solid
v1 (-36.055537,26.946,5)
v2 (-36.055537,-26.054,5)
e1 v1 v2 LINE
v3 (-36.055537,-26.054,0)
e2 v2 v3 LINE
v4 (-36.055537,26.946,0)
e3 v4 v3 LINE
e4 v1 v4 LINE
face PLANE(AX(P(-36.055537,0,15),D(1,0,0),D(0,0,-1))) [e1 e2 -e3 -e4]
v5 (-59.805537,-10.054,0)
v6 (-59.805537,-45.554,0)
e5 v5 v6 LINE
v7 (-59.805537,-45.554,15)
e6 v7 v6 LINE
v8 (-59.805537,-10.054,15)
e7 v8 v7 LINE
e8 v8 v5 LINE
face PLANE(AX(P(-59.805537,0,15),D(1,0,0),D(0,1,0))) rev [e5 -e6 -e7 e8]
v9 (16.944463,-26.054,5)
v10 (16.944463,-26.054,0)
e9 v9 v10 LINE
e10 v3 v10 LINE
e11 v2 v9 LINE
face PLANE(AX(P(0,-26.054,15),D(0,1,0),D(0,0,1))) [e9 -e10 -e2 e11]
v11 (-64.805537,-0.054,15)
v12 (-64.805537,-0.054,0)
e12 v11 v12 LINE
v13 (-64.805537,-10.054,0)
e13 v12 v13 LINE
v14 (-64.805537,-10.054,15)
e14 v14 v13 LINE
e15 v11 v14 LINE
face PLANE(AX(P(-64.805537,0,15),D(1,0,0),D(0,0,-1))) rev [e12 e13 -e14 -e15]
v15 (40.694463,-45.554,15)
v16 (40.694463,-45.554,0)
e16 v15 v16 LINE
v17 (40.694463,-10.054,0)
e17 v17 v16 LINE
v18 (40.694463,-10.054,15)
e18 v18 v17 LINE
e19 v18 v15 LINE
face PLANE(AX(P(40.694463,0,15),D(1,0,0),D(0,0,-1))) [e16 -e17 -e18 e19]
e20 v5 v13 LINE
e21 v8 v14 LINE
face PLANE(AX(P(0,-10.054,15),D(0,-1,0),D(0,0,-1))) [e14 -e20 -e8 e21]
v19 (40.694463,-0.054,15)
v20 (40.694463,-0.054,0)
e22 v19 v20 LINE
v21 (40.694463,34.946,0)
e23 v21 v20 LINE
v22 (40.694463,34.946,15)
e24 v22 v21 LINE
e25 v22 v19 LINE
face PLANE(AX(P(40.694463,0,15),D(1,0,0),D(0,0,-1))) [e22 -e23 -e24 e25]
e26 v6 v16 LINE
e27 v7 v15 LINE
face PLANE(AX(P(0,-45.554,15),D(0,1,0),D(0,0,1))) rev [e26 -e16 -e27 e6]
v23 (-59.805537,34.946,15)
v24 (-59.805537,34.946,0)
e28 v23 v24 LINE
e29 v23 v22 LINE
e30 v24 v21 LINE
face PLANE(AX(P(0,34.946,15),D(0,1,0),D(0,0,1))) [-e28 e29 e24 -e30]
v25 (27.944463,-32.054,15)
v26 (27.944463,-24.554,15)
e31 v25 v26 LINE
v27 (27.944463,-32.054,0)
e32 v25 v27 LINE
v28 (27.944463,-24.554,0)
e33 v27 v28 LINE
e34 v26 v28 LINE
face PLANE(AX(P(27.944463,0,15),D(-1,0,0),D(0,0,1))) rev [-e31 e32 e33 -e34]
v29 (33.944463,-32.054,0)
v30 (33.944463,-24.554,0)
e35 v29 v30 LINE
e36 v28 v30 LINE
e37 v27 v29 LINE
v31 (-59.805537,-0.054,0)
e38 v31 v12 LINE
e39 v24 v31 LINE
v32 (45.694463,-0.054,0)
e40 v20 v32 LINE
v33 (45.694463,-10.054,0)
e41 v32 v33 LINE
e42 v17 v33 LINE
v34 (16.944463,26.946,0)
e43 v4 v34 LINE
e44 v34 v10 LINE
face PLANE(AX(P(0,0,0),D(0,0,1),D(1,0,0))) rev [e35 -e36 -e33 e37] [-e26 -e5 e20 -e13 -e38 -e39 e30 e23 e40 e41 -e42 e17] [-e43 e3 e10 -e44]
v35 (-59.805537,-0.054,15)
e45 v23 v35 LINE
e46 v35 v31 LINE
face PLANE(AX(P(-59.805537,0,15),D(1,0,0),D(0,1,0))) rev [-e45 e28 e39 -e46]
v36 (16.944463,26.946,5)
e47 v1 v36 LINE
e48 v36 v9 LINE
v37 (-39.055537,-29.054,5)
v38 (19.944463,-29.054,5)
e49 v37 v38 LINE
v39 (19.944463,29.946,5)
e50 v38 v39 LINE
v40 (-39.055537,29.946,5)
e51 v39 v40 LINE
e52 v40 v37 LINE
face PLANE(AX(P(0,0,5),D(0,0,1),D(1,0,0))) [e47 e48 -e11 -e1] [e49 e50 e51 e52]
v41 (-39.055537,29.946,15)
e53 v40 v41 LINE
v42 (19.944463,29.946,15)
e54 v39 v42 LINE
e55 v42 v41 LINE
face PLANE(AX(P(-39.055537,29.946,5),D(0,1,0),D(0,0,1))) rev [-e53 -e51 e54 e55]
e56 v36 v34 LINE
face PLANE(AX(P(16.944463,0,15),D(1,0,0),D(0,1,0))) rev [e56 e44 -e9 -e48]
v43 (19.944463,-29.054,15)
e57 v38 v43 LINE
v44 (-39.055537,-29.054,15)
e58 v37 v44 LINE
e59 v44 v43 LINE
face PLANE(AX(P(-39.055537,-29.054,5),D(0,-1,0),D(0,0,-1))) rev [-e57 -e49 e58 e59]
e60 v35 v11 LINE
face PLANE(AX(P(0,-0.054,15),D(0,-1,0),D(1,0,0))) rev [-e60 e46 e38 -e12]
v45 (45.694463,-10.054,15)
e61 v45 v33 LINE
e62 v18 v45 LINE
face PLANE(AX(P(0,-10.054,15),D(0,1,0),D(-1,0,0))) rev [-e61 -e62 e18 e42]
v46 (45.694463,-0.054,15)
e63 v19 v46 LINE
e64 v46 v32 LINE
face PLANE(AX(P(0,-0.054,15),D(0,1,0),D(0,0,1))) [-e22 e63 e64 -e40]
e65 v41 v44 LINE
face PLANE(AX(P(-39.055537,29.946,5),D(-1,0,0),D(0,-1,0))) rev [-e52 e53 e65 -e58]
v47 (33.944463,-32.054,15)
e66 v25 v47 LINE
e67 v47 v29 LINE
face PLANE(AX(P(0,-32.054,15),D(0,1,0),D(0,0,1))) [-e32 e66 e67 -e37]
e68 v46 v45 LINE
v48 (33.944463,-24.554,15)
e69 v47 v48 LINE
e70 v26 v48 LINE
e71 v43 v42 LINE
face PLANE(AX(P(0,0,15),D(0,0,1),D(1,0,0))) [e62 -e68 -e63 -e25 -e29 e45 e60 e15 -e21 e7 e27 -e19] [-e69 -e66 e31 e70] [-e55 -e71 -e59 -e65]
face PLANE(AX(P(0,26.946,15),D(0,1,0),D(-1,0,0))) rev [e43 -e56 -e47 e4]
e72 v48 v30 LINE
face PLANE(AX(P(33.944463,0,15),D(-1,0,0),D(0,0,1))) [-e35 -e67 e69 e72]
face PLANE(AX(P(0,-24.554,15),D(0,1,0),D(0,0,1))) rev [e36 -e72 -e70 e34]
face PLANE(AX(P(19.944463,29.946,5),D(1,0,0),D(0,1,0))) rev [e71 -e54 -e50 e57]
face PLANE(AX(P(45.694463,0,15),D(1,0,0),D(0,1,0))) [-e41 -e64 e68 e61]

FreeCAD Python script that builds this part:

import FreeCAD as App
import Part
import Sketcher


def add_polygon(sketch, points):
    """Adds a closed chain of lines whose ends are joined by coincident constraints."""
    first, n = sketch.GeometryCount, len(points)
    for a, b in zip(points, points[1:] + points[:1]):
        sketch.addGeometry(Part.LineSegment(App.Vector(*a, 0), App.Vector(*b, 0)), False)
    for i in range(n):
        sketch.addConstraint(Sketcher.Constraint("Coincident", first + i, 2, first + (i + 1) % n, 1))

doc = App.newDocument("Part")
body = doc.addObject("PartDesign::Body", "Body")

sketch1 = body.newObject("Sketcher::SketchObject", "Sketch")
sketch1.AttachmentSupport = (doc.getObject("XY_Plane"), [""])
sketch1.MapMode = "FlatFace"
add_polygon(sketch1, [(-65, 0), (-65, -10), (-60, -10), (-60, -46), (41, -46), (41, -10), (46, -10), (46, 0), (41, 0), (41, 35), (-60, 35), (-60, 0)])
add_polygon(sketch1, [(34, -32), (28, -32), (28, -25), (34, -25)])
add_polygon(sketch1, [(17, -26), (-36, -26), (-36, 27), (17, 27)])
sketch1.addConstraint(Sketcher.Constraint("Vertical", 0))
sketch1.addConstraint(Sketcher.Constraint("Horizontal", 1))
sketch1.addConstraint(Sketcher.Constraint("Vertical", 2))
sketch1.addConstraint(Sketcher.Constraint("Horizontal", 3))
sketch1.addConstraint(Sketcher.Constraint("Vertical", 4))
sketch1.addConstraint(Sketcher.Constraint("Horizontal", 5))
sketch1.addConstraint(Sketcher.Constraint("Vertical", 6))
sketch1.addConstraint(Sketcher.Constraint("Horizontal", 7))
sketch1.addConstraint(Sketcher.Constraint("Vertical", 8))
sketch1.addConstraint(Sketcher.Constraint("Horizontal", 9))
sketch1.addConstraint(Sketcher.Constraint("Vertical", 10))
sketch1.addConstraint(Sketcher.Constraint("Horizontal", 11))
sketch1.addConstraint(Sketcher.Constraint("Horizontal", 12))
sketch1.addConstraint(Sketcher.Constraint("Vertical", 13))
sketch1.addConstraint(Sketcher.Constraint("Horizontal", 14))
sketch1.addConstraint(Sketcher.Constraint("Vertical", 15))
sketch1.addConstraint(Sketcher.Constraint("Horizontal", 16))
sketch1.addConstraint(Sketcher.Constraint("Vertical", 17))
sketch1.addConstraint(Sketcher.Constraint("Horizontal", 18))
sketch1.addConstraint(Sketcher.Constraint("Vertical", 19))
sketch1.addConstraint(Sketcher.Constraint("Horizontal", 1, 2, 4, 2))
sketch1.addConstraint(Sketcher.Constraint("Horizontal", 7, 2, 10, 2))
sketch1.addConstraint(Sketcher.Constraint("Vertical", 4, 2, 7, 2))
sketch1.addConstraint(Sketcher.Constraint("Vertical", 2, 2, 9, 2))
sketch1.addConstraint(Sketcher.Constraint("Equal", 1, 5))
sketch1.addConstraint(Sketcher.Constraint("Equal", 18, 17))
sketch1.addConstraint(Sketcher.Constraint("DistanceX", 1, 1, 1, 2, 5.0))
sketch1.addConstraint(Sketcher.Constraint("DistanceX", 12, 2, 12, 1, 6.0))
sketch1.addConstraint(Sketcher.Constraint("DistanceX", 16, 2, 16, 1, 53.0))
sketch1.addConstraint(Sketcher.Constraint("DistanceY", 0, 2, 0, 1, 10.0))
sketch1.addConstraint(Sketcher.Constraint("DistanceY", 8, 1, 8, 2, 35.0))
sketch1.addConstraint(Sketcher.Constraint("DistanceX", 3, 1, 3, 2, 100.5))
sketch1.addConstraint(Sketcher.Constraint("DistanceY", 2, 2, 2, 1, 35.5))
sketch1.addConstraint(Sketcher.Constraint("DistanceY", 13, 1, 13, 2, 7.5))
sketch1.addConstraint(Sketcher.Constraint("DistanceY", 12, 2, 4, 2, 22.0))
sketch1.addConstraint(Sketcher.Constraint("DistanceY", 16, 2, 1, 2, 16.0))
sketch1.addConstraint(Sketcher.Constraint("DistanceX", 19, 2, 13, 2, 11.0))
sketch1.addConstraint(Sketcher.Constraint("DistanceX", 12, 2, 3, 2, 12.75))
sketch1.addConstraint(Sketcher.Constraint("DistanceY", 0, 2, -1, 1, 10.054))
sketch1.addConstraint(Sketcher.Constraint("DistanceX", 0, 2, -1, 1, 64.805537))
pad1 = body.newObject("PartDesign::Pad", "Pad")
pad1.Profile = sketch1
pad1.Length = 15

sketch2 = body.newObject("Sketcher::SketchObject", "Sketch001")
sketch2.AttachmentSupport = (doc.getObject("XY_Plane"), [""])
sketch2.MapMode = "FlatFace"
sketch2.AttachmentOffset = App.Placement(App.Vector(0, 0, 15), App.Rotation())
add_polygon(sketch2, [(-39, 30), (-39, -29), (20, -29), (20, 30)])
sketch2.addConstraint(Sketcher.Constraint("Vertical", 0))
sketch2.addConstraint(Sketcher.Constraint("Horizontal", 1))
sketch2.addConstraint(Sketcher.Constraint("Vertical", 2))
sketch2.addConstraint(Sketcher.Constraint("Horizontal", 3))
sketch2.addConstraint(Sketcher.Constraint("Equal", 3, 0))
sketch2.addConstraint(Sketcher.Constraint("DistanceX", 1, 1, 1, 2, 59.0))
sketch2.addConstraint(Sketcher.Constraint("DistanceY", 0, 2, -1, 1, 29.054))
sketch2.addConstraint(Sketcher.Constraint("DistanceX", 0, 2, -1, 1, 39.055537))
pocket1 = body.newObject("PartDesign::Pocket", "Pocket")
pocket1.Profile = sketch2
pocket1.Length = 10

doc.recompute()
